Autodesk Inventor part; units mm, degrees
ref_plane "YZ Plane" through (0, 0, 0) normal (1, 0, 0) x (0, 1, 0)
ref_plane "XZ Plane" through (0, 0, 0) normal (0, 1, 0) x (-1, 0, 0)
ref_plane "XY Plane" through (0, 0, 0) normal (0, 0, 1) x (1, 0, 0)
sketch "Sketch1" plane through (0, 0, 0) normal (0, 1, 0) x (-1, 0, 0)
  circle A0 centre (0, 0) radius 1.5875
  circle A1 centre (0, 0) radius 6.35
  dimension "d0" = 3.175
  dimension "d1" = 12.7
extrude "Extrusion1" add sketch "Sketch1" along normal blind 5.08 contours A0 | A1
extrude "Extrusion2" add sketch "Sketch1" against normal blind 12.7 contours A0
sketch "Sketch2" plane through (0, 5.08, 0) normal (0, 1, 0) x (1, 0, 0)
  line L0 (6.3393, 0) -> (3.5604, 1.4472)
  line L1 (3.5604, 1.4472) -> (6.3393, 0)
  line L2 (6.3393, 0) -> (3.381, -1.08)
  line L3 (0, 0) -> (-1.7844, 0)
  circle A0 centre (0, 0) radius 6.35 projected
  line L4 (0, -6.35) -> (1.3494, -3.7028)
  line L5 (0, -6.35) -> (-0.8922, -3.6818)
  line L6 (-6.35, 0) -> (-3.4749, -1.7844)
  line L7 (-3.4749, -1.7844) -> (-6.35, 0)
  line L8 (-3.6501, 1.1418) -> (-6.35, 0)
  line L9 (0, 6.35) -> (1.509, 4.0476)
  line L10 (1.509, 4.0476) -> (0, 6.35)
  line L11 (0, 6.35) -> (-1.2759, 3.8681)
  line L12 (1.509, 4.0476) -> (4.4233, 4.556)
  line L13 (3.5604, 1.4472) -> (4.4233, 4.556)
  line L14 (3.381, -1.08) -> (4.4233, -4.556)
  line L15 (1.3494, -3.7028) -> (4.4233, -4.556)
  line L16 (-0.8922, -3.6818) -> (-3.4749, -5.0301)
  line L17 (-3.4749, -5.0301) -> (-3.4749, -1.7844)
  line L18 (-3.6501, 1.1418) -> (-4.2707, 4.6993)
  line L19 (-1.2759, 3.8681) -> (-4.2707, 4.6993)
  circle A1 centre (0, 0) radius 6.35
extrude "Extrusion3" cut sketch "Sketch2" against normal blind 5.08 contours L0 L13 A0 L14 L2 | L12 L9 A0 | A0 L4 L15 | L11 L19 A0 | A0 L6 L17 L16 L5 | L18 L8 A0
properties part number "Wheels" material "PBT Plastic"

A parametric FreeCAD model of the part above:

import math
import FreeCAD as App
import Part
import Sketcher

V = App.Vector
Q = App.Units.Quantity

doc = App.newDocument("Part")
body = doc.addObject("PartDesign::Body", "Body")

sketch1 = body.newObject("Sketcher::SketchObject", "Sketch")
sketch1.AttachmentSupport = (doc.getObject("XZ_Plane"), [""])
sketch1.MapMode = "FlatFace"
sketch1.addGeometry(Part.Circle(V(0, 0, 0), V(0, 0, 1), 6), False)
sketch1.addConstraint(Sketcher.Constraint("Coincident", 0, 3, -1, 1))
sketch1.addConstraint(Sketcher.Constraint("Diameter", 0, Q("0.5 in")))
pad1 = body.newObject("PartDesign::Pad", "Pad")
pad1.Profile = sketch1
pad1.Length = Q("0.2 in")
pad1.Reversed = True

sketch2 = body.newObject("Sketcher::SketchObject", "Sketch001")
sketch2.AttachmentSupport = (doc.getObject("XZ_Plane"), [""])
sketch2.MapMode = "FlatFace"
sketch2.addGeometry(Part.Circle(V(0, 0, 0), V(0, 0, 1), 1.6), False)
sketch2.addConstraint(Sketcher.Constraint("Coincident", 0, 3, -1, 1))
sketch2.addConstraint(Sketcher.Constraint("Diameter", 0, Q("0.125 in")))
pad2 = body.newObject("PartDesign::Pad", "Pad001")
pad2.Profile = sketch2
pad2.Length = Q("0.5 in")

sketch3 = body.newObject("Sketcher::SketchObject", "Sketch002")
sketch3.AttachmentSupport = (doc.getObject("XZ_Plane"), [""])
sketch3.MapMode = "FlatFace"
sketch3.AttachmentOffset = App.Placement(V(0, 0, -0.2 * 25.4), App.Rotation())
sketch3.addGeometry(Part.LineSegment(V(3.5604, -1.4472, 0), V(6.3393, 0, 0)), False)
sketch3.addGeometry(Part.LineSegment(V(6.3393, 0, 0), V(3.381, 1.08, 0)), False)
sketch3.addGeometry(Part.LineSegment(V(3.381, 1.08, 0), V(4.4233, 4.556, 0)), False)
sketch3.addGeometry(Part.ArcOfCircle(Part.Circle(V(0, 0, 0), V(0, 0, 1), 6.35), math.radians(-45.84668), math.radians(45.84668)), False)
sketch3.addGeometry(Part.LineSegment(V(4.4233, -4.556, 0), V(3.5604, -1.4472, 0)), False)
sketch3.addGeometry(Part.LineSegment(V(1.509, -4.0476, 0), V(4.4233, -4.556, 0)), False)
sketch3.addGeometry(Part.ArcOfCircle(Part.Circle(V(0, 0, 0), V(0, 0, 1), 6.35), math.radians(-90), math.radians(-45.84668)), False)
sketch3.addGeometry(Part.LineSegment(V(0, -6.35, 0), V(1.509, -4.0476, 0)), False)
sketch3.addGeometry(Part.ArcOfCircle(Part.Circle(V(0, 0, 0), V(0, 0, 1), 6.35), math.radians(45.84668), math.radians(90)), False)
sketch3.addGeometry(Part.LineSegment(V(4.4233, 4.556, 0), V(1.3494, 3.7028, 0)), False)
sketch3.addGeometry(Part.LineSegment(V(1.3494, 3.7028, 0), V(0, 6.35, 0)), False)
sketch3.addGeometry(Part.LineSegment(V(-1.2759, -3.8681, 0), V(0, -6.35, 0)), False)
sketch3.addGeometry(Part.ArcOfCircle(Part.Circle(V(0, 0, 0), V(0, 0, 1), 6.35), math.radians(-132.264403), math.radians(-90)), False)
sketch3.addGeometry(Part.LineSegment(V(-4.2707, -4.6993, 0), V(-1.2759, -3.8681, 0)), False)
sketch3.addGeometry(Part.ArcOfCircle(Part.Circle(V(0, 0, 0), V(0, 0, 1), 6.35), math.radians(90), math.radians(180)), False)
sketch3.addGeometry(Part.LineSegment(V(0, 6.35, 0), V(-0.8922, 3.6818, 0)), False)
sketch3.addGeometry(Part.LineSegment(V(-0.8922, 3.6818, 0), V(-3.4749, 5.0301, 0)), False)
sketch3.addGeometry(Part.LineSegment(V(-3.4749, 5.0301, 0), V(-3.4749, 1.7844, 0)), False)
sketch3.addGeometry(Part.LineSegment(V(-3.4749, 1.7844, 0), V(-6.35, 0, 0)), False)
sketch3.addGeometry(Part.LineSegment(V(-3.6501, -1.1418, 0), V(-4.2707, -4.6993, 0)), False)
sketch3.addGeometry(Part.ArcOfCircle(Part.Circle(V(0, 0, 0), V(0, 0, 1), 6.35), math.radians(180), math.radians(227.735597)), False)
sketch3.addGeometry(Part.LineSegment(V(-6.35, 0, 0), V(-3.6501, -1.1418, 0)), False)
sketch3.addConstraint(Sketcher.Constraint("Coincident", 0, 2, 1, 1))
sketch3.addConstraint(Sketcher.Constraint("Coincident", 1, 2, 2, 1))
sketch3.addConstraint(Sketcher.Constraint("Coincident", 2, 2, 3, 2))
sketch3.addConstraint(Sketcher.Constraint("Coincident", 3, 1, 4, 1))
sketch3.addConstraint(Sketcher.Constraint("Coincident", 4, 2, 0, 1))
sketch3.addConstraint(Sketcher.Constraint("Coincident", 5, 2, 6, 2))
sketch3.addConstraint(Sketcher.Constraint("Coincident", 6, 1, 7, 1))
sketch3.addConstraint(Sketcher.Constraint("Coincident", 7, 2, 5, 1))
sketch3.addConstraint(Sketcher.Constraint("Coincident", 8, 1, 9, 1))
sketch3.addConstraint(Sketcher.Constraint("Coincident", 9, 2, 10, 1))
sketch3.addConstraint(Sketcher.Constraint("Coincident", 10, 2, 8, 2))
sketch3.addConstraint(Sketcher.Constraint("Coincident", 11, 2, 12, 2))
sketch3.addConstraint(Sketcher.Constraint("Coincident", 12, 1, 13, 1))
sketch3.addConstraint(Sketcher.Constraint("Coincident", 13, 2, 11, 1))
sketch3.addConstraint(Sketcher.Constraint("Coincident", 14, 1, 15, 1))
sketch3.addConstraint(Sketcher.Constraint("Coincident", 15, 2, 16, 1))
sketch3.addConstraint(Sketcher.Constraint("Coincident", 16, 2, 17, 1))
sketch3.addConstraint(Sketcher.Constraint("Coincident", 17, 2, 18, 1))
sketch3.addConstraint(Sketcher.Constraint("Coincident", 18, 2, 14, 2))
sketch3.addConstraint(Sketcher.Constraint("Coincident", 19, 2, 20, 2))
sketch3.addConstraint(Sketcher.Constraint("Coincident", 20, 1, 21, 1))
sketch3.addConstraint(Sketcher.Constraint("Coincident", 21, 2, 19, 1))
sketch3.addConstraint(Sketcher.Constraint("Vertical", 17))
sketch3.addConstraint(Sketcher.Constraint("Coincident", 3, 3, -1, 1))
sketch3.addConstraint(Sketcher.Constraint("Coincident", 6, 3, -1, 1))
sketch3.addConstraint(Sketcher.Constraint("Coincident", 8, 3, -1, 1))
sketch3.addConstraint(Sketcher.Constraint("Coincident", 12, 3, -1, 1))
sketch3.addConstraint(Sketcher.Constraint("Coincident", 14, 3, -1, 1))
sketch3.addConstraint(Sketcher.Constraint("Coincident", 20, 3, -1, 1))
sketch3.addConstraint(Sketcher.Constraint("Coincident", 5, 2, 3, 1))
sketch3.addConstraint(Sketcher.Constraint("Coincident", 8, 1, 2, 2))
sketch3.addConstraint(Sketcher.Constraint("Coincident", 11, 2, 6, 1))
sketch3.addConstraint(Sketcher.Constraint("Coincident", 14, 1, 10, 2))
sketch3.addConstraint(Sketcher.Constraint("Coincident", 19, 2, 12, 1))
sketch3.addConstraint(Sketcher.Constraint("PointOnObject", 0, 2, -1))
sketch3.addConstraint(Sketcher.Constraint("PointOnObject", 6, 1, -2))
sketch3.addConstraint(Sketcher.Constraint("PointOnObject", 10, 2, -2))
sketch3.addConstraint(Sketcher.Constraint("PointOnObject", 18, 2, -1))
sketch3.addConstraint(Sketcher.Constraint("PointOnObject", 20, 1, -1))
sketch3.addConstraint(Sketcher.Constraint("Radius", 3, Q("0.25 in")))
sketch3.addConstraint(Sketcher.Constraint("DistanceY", 19, 2, -1, 1, Q("0.185 in")))
sketch3.addConstraint(Sketcher.Constraint("Distance", 9, Q("0.1256 in")))
sketch3.addConstraint(Sketcher.Constraint("Distance", 16, Q("0.1147 in")))
sketch3.addConstraint(Sketcher.Constraint("Distance", 21, Q("0.1154 in")))
sketch3.addConstraint(Sketcher.Constraint("DistanceY", 17, 2, 17, 1, Q("3.2457 mm")))
sketch3.addConstraint(Sketcher.Constraint("DistanceX", -1, 1, 1, 2, Q("0.1331 in")))
sketch3.addConstraint(Sketcher.Constraint("DistanceX", -1, 1, 7, 2, Q("0.0594 in")))
sketch3.addConstraint(Sketcher.Constraint("DistanceX", 16, 2, -1, 1, Q("0.1368 in")))
sketch3.addConstraint(Sketcher.Constraint("DistanceX", 21, 2, -1, 1, Q("0.1437 in")))
sketch3.addConstraint(Sketcher.Constraint("DistanceY", 3, 1, 1, 2, Q("0.2219 in")))
sketch3.addConstraint(Sketcher.Constraint("DistanceY", 4, 2, 1, 2, Q("0.0995 in")))
sketch3.addConstraint(Sketcher.Constraint("DistanceX", 4, 2, 0, 2, Q("0.1094 in")))
sketch3.addConstraint(Sketcher.Constraint("DistanceY", 9, 2, 8, 1, Q("0.0336 in")))
sketch3.addConstraint(Sketcher.Constraint("DistanceX", 12, 1, 13, 2, Q("0.1179 in")))
sketch3.addConstraint(Sketcher.Constraint("DistanceY", 17, 2, 15, 2, Q("0.0747 in")))
sketch3.addConstraint(Sketcher.Constraint("DistanceY", 21, 2, 17, 2, Q("0.1152 in")))
sketch3.addConstraint(Sketcher.Constraint("Distance", 0, Q("3.1332 mm")))
sketch3.addConstraint(Sketcher.Constraint("Distance", 1, Q("0.1239882 in")))
sketch3.addConstraint(Sketcher.Constraint("Distance", 2, Q("3.629 mm")))
sketch3.addConstraint(Sketcher.Constraint("Distance", 5, Q("2.9583 mm")))
sketch3.addConstraint(Sketcher.Constraint("Distance", 11, Q("2.7907 mm")))
pocket1 = body.newObject("PartDesign::Pocket", "Pocket")
pocket1.Profile = sketch3
pocket1.Length = Q("0.2 in")
pocket1.Reversed = True

doc.recompute()
